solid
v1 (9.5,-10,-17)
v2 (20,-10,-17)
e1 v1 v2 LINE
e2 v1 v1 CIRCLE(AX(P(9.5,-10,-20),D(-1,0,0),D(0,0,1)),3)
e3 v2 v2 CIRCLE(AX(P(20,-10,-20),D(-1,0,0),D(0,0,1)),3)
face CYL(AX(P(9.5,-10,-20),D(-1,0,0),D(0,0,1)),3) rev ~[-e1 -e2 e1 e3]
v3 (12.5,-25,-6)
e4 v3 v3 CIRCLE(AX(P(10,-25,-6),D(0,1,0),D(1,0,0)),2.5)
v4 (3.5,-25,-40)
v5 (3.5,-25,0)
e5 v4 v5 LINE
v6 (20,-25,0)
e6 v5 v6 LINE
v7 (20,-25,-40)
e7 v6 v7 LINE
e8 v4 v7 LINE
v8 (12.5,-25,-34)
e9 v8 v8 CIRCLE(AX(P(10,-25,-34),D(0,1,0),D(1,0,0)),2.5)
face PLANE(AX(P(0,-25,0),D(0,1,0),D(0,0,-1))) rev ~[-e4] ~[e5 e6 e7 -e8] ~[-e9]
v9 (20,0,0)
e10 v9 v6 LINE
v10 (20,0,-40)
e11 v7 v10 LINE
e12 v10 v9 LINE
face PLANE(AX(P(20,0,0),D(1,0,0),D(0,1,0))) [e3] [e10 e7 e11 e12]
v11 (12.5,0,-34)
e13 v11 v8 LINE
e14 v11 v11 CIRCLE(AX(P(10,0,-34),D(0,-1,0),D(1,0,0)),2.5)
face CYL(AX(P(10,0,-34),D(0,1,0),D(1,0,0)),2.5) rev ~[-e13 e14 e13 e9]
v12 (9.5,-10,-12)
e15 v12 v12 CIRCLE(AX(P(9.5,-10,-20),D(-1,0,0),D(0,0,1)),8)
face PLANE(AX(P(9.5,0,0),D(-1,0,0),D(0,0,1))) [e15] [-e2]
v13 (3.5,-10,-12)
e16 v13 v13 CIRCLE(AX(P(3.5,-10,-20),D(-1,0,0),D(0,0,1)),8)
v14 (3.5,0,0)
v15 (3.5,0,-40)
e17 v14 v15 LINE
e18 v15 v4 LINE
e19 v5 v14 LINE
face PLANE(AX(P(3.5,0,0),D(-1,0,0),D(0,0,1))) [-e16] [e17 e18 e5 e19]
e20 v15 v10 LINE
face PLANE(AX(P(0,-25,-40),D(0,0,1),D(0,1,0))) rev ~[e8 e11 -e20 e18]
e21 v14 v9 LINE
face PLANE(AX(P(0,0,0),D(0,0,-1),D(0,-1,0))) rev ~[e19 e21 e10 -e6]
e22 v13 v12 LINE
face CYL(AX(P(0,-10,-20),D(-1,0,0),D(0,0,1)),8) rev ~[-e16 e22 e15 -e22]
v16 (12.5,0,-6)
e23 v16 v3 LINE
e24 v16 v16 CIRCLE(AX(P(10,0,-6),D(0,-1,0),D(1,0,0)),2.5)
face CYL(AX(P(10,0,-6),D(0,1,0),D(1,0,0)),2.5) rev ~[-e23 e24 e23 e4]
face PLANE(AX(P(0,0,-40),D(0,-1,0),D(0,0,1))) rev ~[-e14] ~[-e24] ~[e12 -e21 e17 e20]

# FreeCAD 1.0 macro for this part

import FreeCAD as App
import Part
import Sketcher

V = App.Vector

doc = App.newDocument("Part")
body = doc.addObject("PartDesign::Body", "Body")

# Sketch on YZ plane
sketch1 = body.newObject("Sketcher::SketchObject", "Sketch")
sketch1.AttachmentSupport = (doc.getObject("YZ_Plane"), [""])
sketch1.MapMode = "FlatFace"
sketch1.addGeometry([
    Part.LineSegment(V(0, -40, 0), V(0, 0, 0)),
    Part.LineSegment(V(0, 0, 0), V(-25, 0, 0)),
    Part.LineSegment(V(-25, 0, 0), V(-25, -40, 0)),
    Part.LineSegment(V(-25, -40, 0), V(0, -40, 0)),
], False)
sketch1.addConstraint([
    Sketcher.Constraint("Coincident", 0, 2, 1, 1),
    Sketcher.Constraint("Coincident", 1, 2, 2, 1),
    Sketcher.Constraint("Coincident", 2, 2, 3, 1),
    Sketcher.Constraint("Coincident", 3, 2, 0, 1),
    Sketcher.Constraint("Vertical", 0),
    Sketcher.Constraint("Horizontal", 1),
    Sketcher.Constraint("Vertical", 2),
    Sketcher.Constraint("Horizontal", 3),
    Sketcher.Constraint("Coincident", 0, 2, -1, 1),
    Sketcher.Constraint("DistanceX", 1, 2, 1, 1, 25.0),
    Sketcher.Constraint("DistanceY", 0, 1, 0, 2, 40.0),
])
pad1 = body.newObject("PartDesign::Pad", "Pad")
pad1.Profile = sketch1
pad1.Length = 20

# Sketch on YZ plane
sketch2 = body.newObject("Sketcher::SketchObject", "Sketch001")
sketch2.AttachmentSupport = (doc.getObject("YZ_Plane"), [""])
sketch2.MapMode = "FlatFace"
sketch2.AttachmentOffset = App.Placement(V(0, 0, 20), App.Rotation())
sketch2.addGeometry(Part.Circle(V(-10, -20, 0), V(0, 0, 1), 2.5), False)
sketch2.addConstraint([
    Sketcher.Constraint("Diameter", 0, 5.0),
    Sketcher.Constraint("DistanceX", 0, 3, -1, 1, 10.0),
    Sketcher.Constraint("DistanceY", 0, 3, -1, 1, 20.0),
])
pocket1 = body.newObject("PartDesign::Pocket", "Pocket")
pocket1.Profile = sketch2
pocket1.Length = 20

# Sketch on XZ plane
sketch3 = body.newObject("Sketcher::SketchObject", "Sketch002")
sketch3.AttachmentSupport = (doc.getObject("XZ_Plane"), [""])
sketch3.MapMode = "FlatFace"
sketch3.addGeometry([
    Part.Circle(V(10, -6, 0), V(0, 0, 1), 2.5),
    Part.Circle(V(10, -34, 0), V(0, 0, 1), 2.5),
], False)
sketch3.addConstraint([
    Sketcher.Constraint("Equal", 0, 1),
    Sketcher.Constraint("Vertical", 0, 3, 1, 3),
    Sketcher.Constraint("Diameter", 0, 5.0),
    Sketcher.Constraint("DistanceX", -1, 1, 0, 3, 10.0),
    Sketcher.Constraint("DistanceY", 0, 3, -1, 1, 6.0),
    Sketcher.Constraint("DistanceY", 1, 3, -1, 1, 34.0),
])
pocket2 = body.newObject("PartDesign::Pocket", "Pocket001")
pocket2.Profile = sketch3
pocket2.Type = "ThroughAll"
pocket2.Reversed = True

# Sketch on YZ plane
sketch4 = body.newObject("Sketcher::SketchObject", "Sketch003")
sketch4.AttachmentSupport = (doc.getObject("YZ_Plane"), [""])
sketch4.MapMode = "FlatFace"
sketch4.addGeometry([
    Part.Circle(V(-10, -20, 0), V(0, 0, 1), 8),
    Part.Circle(V(-10, -20, 0), V(0, 0, 1), 2.5),
], False)
sketch4.addConstraint([
    Sketcher.Constraint("Coincident", 1, 3, 0, 3),
    Sketcher.Constraint("Diameter", 0, 16.0),
    Sketcher.Constraint("Diameter", 1, 5.0),
    Sketcher.Constraint("DistanceX", 0, 3, -1, 1, 10.0),
    Sketcher.Constraint("DistanceY", 0, 3, -1, 1, 20.0),
])
pocket3 = body.newObject("PartDesign::Pocket", "Pocket002")
pocket3.Profile = sketch4
pocket3.Length = 9.5
pocket3.Reversed = True

# Sketch on YZ plane
sketch5 = body.newObject("Sketcher::SketchObject", "Sketch004")
sketch5.AttachmentSupport = (doc.getObject("YZ_Plane"), [""])
sketch5.MapMode = "FlatFace"
sketch5.AttachmentOffset = App.Placement(V(0, 0, 9.5), App.Rotation())
sketch5.addGeometry(Part.Circle(V(-10, -20, 0), V(0, 0, 1), 3), False)
sketch5.addConstraint([
    Sketcher.Constraint("Diameter", 0, 6.0),
    Sketcher.Constraint("DistanceX", 0, 3, -1, 1, 10.0),
    Sketcher.Constraint("DistanceY", 0, 3, -1, 1, 20.0),
])
pocket4 = body.newObject("PartDesign::Pocket", "Pocket003")
pocket4.Profile = sketch5
pocket4.Type = "ThroughAll"
pocket4.Reversed = True

# Sketch on YZ plane
sketch6 = body.newObject("Sketcher::SketchObject", "Sketch005")
sketch6.AttachmentSupport = (doc.getObject("YZ_Plane"), [""])
sketch6.MapMode = "FlatFace"
sketch6.addGeometry([
    Part.LineSegment(V(16, 33, 0), V(16, -58, 0)),
    Part.LineSegment(V(16, -58, 0), V(-50, -58, 0)),
    Part.LineSegment(V(-50, -58, 0), V(-50, 33, 0)),
    Part.LineSegment(V(-50, 33, 0), V(16, 33, 0)),
], False)
sketch6.addConstraint([
    Sketcher.Constraint("Coincident", 0, 2, 1, 1),
    Sketcher.Constraint("Coincident", 1, 2, 2, 1),
    Sketcher.Constraint("Coincident", 2, 2, 3, 1),
    Sketcher.Constraint("Coincident", 3, 2, 0, 1),
    Sketcher.Constraint("Vertical", 0),
    Sketcher.Constraint("Horizontal", 1),
    Sketcher.Constraint("Vertical", 2),
    Sketcher.Constraint("Horizontal", 3),
    Sketcher.Constraint("DistanceX", 1, 2, 1, 1, 65.4806),
    Sketcher.Constraint("DistanceY", 0, 2, 0, 1, 90.5736),
    Sketcher.Constraint("DistanceX", 1, 2, -1, 1, 49.708),
    Sketcher.Constraint("DistanceY", 0, 2, -1, 1, 57.9528),
])
pocket5 = body.newObject("PartDesign::Pocket", "Pocket004")
pocket5.Profile = sketch6
pocket5.Length = 3.5
pocket5.Reversed = True

doc.recompute()
